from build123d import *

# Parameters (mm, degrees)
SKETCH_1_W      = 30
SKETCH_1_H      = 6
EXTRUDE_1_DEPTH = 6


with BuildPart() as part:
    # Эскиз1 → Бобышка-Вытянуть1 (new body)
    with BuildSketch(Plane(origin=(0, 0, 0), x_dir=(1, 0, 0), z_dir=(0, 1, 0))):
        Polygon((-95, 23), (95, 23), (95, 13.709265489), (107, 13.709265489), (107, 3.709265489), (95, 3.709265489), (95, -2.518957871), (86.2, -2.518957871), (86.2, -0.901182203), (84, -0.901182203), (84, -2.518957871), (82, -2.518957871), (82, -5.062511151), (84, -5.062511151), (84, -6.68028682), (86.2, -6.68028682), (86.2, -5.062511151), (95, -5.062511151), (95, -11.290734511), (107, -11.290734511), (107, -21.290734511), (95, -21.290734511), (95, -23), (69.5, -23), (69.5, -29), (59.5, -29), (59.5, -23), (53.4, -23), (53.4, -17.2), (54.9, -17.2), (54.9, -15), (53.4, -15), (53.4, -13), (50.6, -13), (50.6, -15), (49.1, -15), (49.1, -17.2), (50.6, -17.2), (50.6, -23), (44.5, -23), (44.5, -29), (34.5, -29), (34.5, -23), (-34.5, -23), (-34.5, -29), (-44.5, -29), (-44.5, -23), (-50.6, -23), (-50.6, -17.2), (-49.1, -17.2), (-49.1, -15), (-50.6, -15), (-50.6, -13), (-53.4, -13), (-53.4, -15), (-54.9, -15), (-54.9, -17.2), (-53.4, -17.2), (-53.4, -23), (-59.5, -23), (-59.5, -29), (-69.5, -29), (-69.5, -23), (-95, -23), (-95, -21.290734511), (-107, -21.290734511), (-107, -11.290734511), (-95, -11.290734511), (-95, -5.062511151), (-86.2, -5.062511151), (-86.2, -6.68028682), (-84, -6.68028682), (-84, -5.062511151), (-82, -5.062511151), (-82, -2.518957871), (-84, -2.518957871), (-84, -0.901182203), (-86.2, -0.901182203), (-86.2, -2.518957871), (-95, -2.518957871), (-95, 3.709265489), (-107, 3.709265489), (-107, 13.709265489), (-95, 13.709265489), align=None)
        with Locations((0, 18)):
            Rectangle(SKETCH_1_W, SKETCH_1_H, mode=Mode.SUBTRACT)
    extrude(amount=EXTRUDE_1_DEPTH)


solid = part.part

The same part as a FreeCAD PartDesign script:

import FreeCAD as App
import Part
import Sketcher

doc = App.newDocument("Part")
params = doc.addObject("Spreadsheet::Sheet", "Params")
for row, (alias, value) in enumerate([
    ("sketch1_width", "190 mm"),
    ("sketch1_width2", "12 mm"),
    ("sketch1_width3", "2 mm"),
    ("sketch1_width4", "10 mm"),
    ("sketch1_width5", "69 mm"),
    ("pad1_length", "6 mm"),
], start=1):
    params.set(f"A{row}", alias)
    params.set(f"B{row}", "=" + value)
    params.setAlias(f"B{row}", alias)

body = doc.addObject("PartDesign::Body", "Body")

# Sketch on XZ plane
sketch1 = doc.addObject("Sketcher::SketchObject", "Sketch")
body.addObject(sketch1)
sketch1.AttachmentSupport = (doc.XZ_Plane, [""])
sketch1.MapMode = "FlatFace"
sketch1.addGeometry([
    Part.LineSegment(App.Vector(95, -23, 0), App.Vector(-95, -23, 0)),  # 0
    Part.LineSegment(App.Vector(-95, -23, 0), App.Vector(-95, -13.7, 0)),  # 1
    Part.LineSegment(App.Vector(-95, -13.7, 0), App.Vector(-107, -13.7, 0)),  # 2
    Part.LineSegment(App.Vector(-107, -13.7, 0), App.Vector(-107, -3.7, 0)),  # 3
    Part.LineSegment(App.Vector(-107, -3.7, 0), App.Vector(-95, -3.7, 0)),  # 4
    Part.LineSegment(App.Vector(-95, -3.7, 0), App.Vector(-95, 2.5, 0)),  # 5
    Part.LineSegment(App.Vector(-95, 2.5, 0), App.Vector(-86.2, 2.5, 0)),  # 6
    Part.LineSegment(App.Vector(-86.2, 2.5, 0), App.Vector(-86.2, 0.9, 0)),  # 7
    Part.LineSegment(App.Vector(-86.2, 0.9, 0), App.Vector(-84, 0.9, 0)),  # 8
    Part.LineSegment(App.Vector(-84, 0.9, 0), App.Vector(-84, 2.5, 0)),  # 9
    Part.LineSegment(App.Vector(-84, 2.5, 0), App.Vector(-82, 2.5, 0)),  # 10
    Part.LineSegment(App.Vector(-82, 2.5, 0), App.Vector(-82, 5.1, 0)),  # 11
    Part.LineSegment(App.Vector(-82, 5.1, 0), App.Vector(-84, 5.1, 0)),  # 12
    Part.LineSegment(App.Vector(-84, 5.1, 0), App.Vector(-84, 6.7, 0)),  # 13
    Part.LineSegment(App.Vector(-84, 6.7, 0), App.Vector(-86.2, 6.7, 0)),  # 14
    Part.LineSegment(App.Vector(-86.2, 6.7, 0), App.Vector(-86.2, 5.1, 0)),  # 15
    Part.LineSegment(App.Vector(-86.2, 5.1, 0), App.Vector(-95, 5.1, 0)),  # 16
    Part.LineSegment(App.Vector(-95, 5.1, 0), App.Vector(-95, 11.3, 0)),  # 17
    Part.LineSegment(App.Vector(-95, 11.3, 0), App.Vector(-107, 11.3, 0)),  # 18
    Part.LineSegment(App.Vector(-107, 11.3, 0), App.Vector(-107, 21.3, 0)),  # 19
    Part.LineSegment(App.Vector(-107, 21.3, 0), App.Vector(-95, 21.3, 0)),  # 20
    Part.LineSegment(App.Vector(-95, 21.3, 0), App.Vector(-95, 23, 0)),  # 21
    Part.LineSegment(App.Vector(-95, 23, 0), App.Vector(-69.5, 23, 0)),  # 22
    Part.LineSegment(App.Vector(-69.5, 23, 0), App.Vector(-69.5, 29, 0)),  # 23
    Part.LineSegment(App.Vector(-69.5, 29, 0), App.Vector(-59.5, 29, 0)),  # 24
    Part.LineSegment(App.Vector(-59.5, 29, 0), App.Vector(-59.5, 23, 0)),  # 25
    Part.LineSegment(App.Vector(-59.5, 23, 0), App.Vector(-53.4, 23, 0)),  # 26
    Part.LineSegment(App.Vector(-53.4, 23, 0), App.Vector(-53.4, 17.2, 0)),  # 27
    Part.LineSegment(App.Vector(-53.4, 17.2, 0), App.Vector(-54.9, 17.2, 0)),  # 28
    Part.LineSegment(App.Vector(-54.9, 17.2, 0), App.Vector(-54.9, 15, 0)),  # 29
    Part.LineSegment(App.Vector(-54.9, 15, 0), App.Vector(-53.4, 15, 0)),  # 30
    Part.LineSegment(App.Vector(-53.4, 15, 0), App.Vector(-53.4, 13, 0)),  # 31
    Part.LineSegment(App.Vector(-53.4, 13, 0), App.Vector(-50.6, 13, 0)),  # 32
    Part.LineSegment(App.Vector(-50.6, 13, 0), App.Vector(-50.6, 15, 0)),  # 33
    Part.LineSegment(App.Vector(-50.6, 15, 0), App.Vector(-49.1, 15, 0)),  # 34
    Part.LineSegment(App.Vector(-49.1, 15, 0), App.Vector(-49.1, 17.2, 0)),  # 35
    Part.LineSegment(App.Vector(-49.1, 17.2, 0), App.Vector(-50.6, 17.2, 0)),  # 36
    Part.LineSegment(App.Vector(-50.6, 17.2, 0), App.Vector(-50.6, 23, 0)),  # 37
    Part.LineSegment(App.Vector(-50.6, 23, 0), App.Vector(-44.5, 23, 0)),  # 38
    Part.LineSegment(App.Vector(-44.5, 23, 0), App.Vector(-44.5, 29, 0)),  # 39
    Part.LineSegment(App.Vector(-44.5, 29, 0), App.Vector(-34.5, 29, 0)),  # 40
    Part.LineSegment(App.Vector(-34.5, 29, 0), App.Vector(-34.5, 23, 0)),  # 41
    Part.LineSegment(App.Vector(-34.5, 23, 0), App.Vector(34.5, 23, 0)),  # 42
    Part.LineSegment(App.Vector(34.5, 23, 0), App.Vector(34.5, 29, 0)),  # 43
    Part.LineSegment(App.Vector(34.5, 29, 0), App.Vector(44.5, 29, 0)),  # 44
    Part.LineSegment(App.Vector(44.5, 29, 0), App.Vector(44.5, 23, 0)),  # 45
    Part.LineSegment(App.Vector(44.5, 23, 0), App.Vector(50.6, 23, 0)),  # 46
    Part.LineSegment(App.Vector(50.6, 23, 0), App.Vector(50.6, 17.2, 0)),  # 47
    Part.LineSegment(App.Vector(50.6, 17.2, 0), App.Vector(49.1, 17.2, 0)),  # 48
    Part.LineSegment(App.Vector(49.1, 17.2, 0), App.Vector(49.1, 15, 0)),  # 49
    Part.LineSegment(App.Vector(49.1, 15, 0), App.Vector(50.6, 15, 0)),  # 50
    Part.LineSegment(App.Vector(50.6, 15, 0), App.Vector(50.6, 13, 0)),  # 51
    Part.LineSegment(App.Vector(50.6, 13, 0), App.Vector(53.4, 13, 0)),  # 52
    Part.LineSegment(App.Vector(53.4, 13, 0), App.Vector(53.4, 15, 0)),  # 53
    Part.LineSegment(App.Vector(53.4, 15, 0), App.Vector(54.9, 15, 0)),  # 54
    Part.LineSegment(App.Vector(54.9, 15, 0), App.Vector(54.9, 17.2, 0)),  # 55
    Part.LineSegment(App.Vector(54.9, 17.2, 0), App.Vector(53.4, 17.2, 0)),  # 56
    Part.LineSegment(App.Vector(53.4, 17.2, 0), App.Vector(53.4, 23, 0)),  # 57
    Part.LineSegment(App.Vector(53.4, 23, 0), App.Vector(59.5, 23, 0)),  # 58
    Part.LineSegment(App.Vector(59.5, 23, 0), App.Vector(59.5, 29, 0)),  # 59
    Part.LineSegment(App.Vector(59.5, 29, 0), App.Vector(69.5, 29, 0)),  # 60
    Part.LineSegment(App.Vector(69.5, 29, 0), App.Vector(69.5, 23, 0)),  # 61
    Part.LineSegment(App.Vector(69.5, 23, 0), App.Vector(95, 23, 0)),  # 62
    Part.LineSegment(App.Vector(95, 23, 0), App.Vector(95, 21.3, 0)),  # 63
    Part.LineSegment(App.Vector(95, 21.3, 0), App.Vector(107, 21.3, 0)),  # 64
    Part.LineSegment(App.Vector(107, 21.3, 0), App.Vector(107, 11.3, 0)),  # 65
    Part.LineSegment(App.Vector(107, 11.3, 0), App.Vector(95, 11.3, 0)),  # 66
    Part.LineSegment(App.Vector(95, 11.3, 0), App.Vector(95, 5.1, 0)),  # 67
    Part.LineSegment(App.Vector(95, 5.1, 0), App.Vector(86.2, 5.1, 0)),  # 68
    Part.LineSegment(App.Vector(86.2, 5.1, 0), App.Vector(86.2, 6.7, 0)),  # 69
    Part.LineSegment(App.Vector(86.2, 6.7, 0), App.Vector(84, 6.7, 0)),  # 70
    Part.LineSegment(App.Vector(84, 6.7, 0), App.Vector(84, 5.1, 0)),  # 71
    Part.LineSegment(App.Vector(84, 5.1, 0), App.Vector(82, 5.1, 0)),  # 72
    Part.LineSegment(App.Vector(82, 5.1, 0), App.Vector(82, 2.5, 0)),  # 73
    Part.LineSegment(App.Vector(82, 2.5, 0), App.Vector(84, 2.5, 0)),  # 74
    Part.LineSegment(App.Vector(84, 2.5, 0), App.Vector(84, 0.9, 0)),  # 75
    Part.LineSegment(App.Vector(84, 0.9, 0), App.Vector(86.2, 0.9, 0)),  # 76
    Part.LineSegment(App.Vector(86.2, 0.9, 0), App.Vector(86.2, 2.5, 0)),  # 77
    Part.LineSegment(App.Vector(86.2, 2.5, 0), App.Vector(95, 2.5, 0)),  # 78
    Part.LineSegment(App.Vector(95, 2.5, 0), App.Vector(95, -3.7, 0)),  # 79
    Part.LineSegment(App.Vector(95, -3.7, 0), App.Vector(107, -3.7, 0)),  # 80
    Part.LineSegment(App.Vector(107, -3.7, 0), App.Vector(107, -13.7, 0)),  # 81
    Part.LineSegment(App.Vector(107, -13.7, 0), App.Vector(95, -13.7, 0)),  # 82
    Part.LineSegment(App.Vector(95, -13.7, 0), App.Vector(95, -23, 0)),  # 83
    Part.LineSegment(App.Vector(-15, -15, 0), App.Vector(-15, -21, 0)),  # 84
    Part.LineSegment(App.Vector(-15, -21, 0), App.Vector(15, -21, 0)),  # 85
    Part.LineSegment(App.Vector(15, -21, 0), App.Vector(15, -15, 0)),  # 86
    Part.LineSegment(App.Vector(15, -15, 0), App.Vector(-15, -15, 0)),  # 87
], False)
sketch1.addConstraint([
    Sketcher.Constraint("Coincident", 0, 2, 1, 1),
    Sketcher.Constraint("Coincident", 1, 2, 2, 1),
    Sketcher.Constraint("Coincident", 2, 2, 3, 1),
    Sketcher.Constraint("Coincident", 3, 2, 4, 1),
    Sketcher.Constraint("Coincident", 4, 2, 5, 1),
    Sketcher.Constraint("Coincident", 5, 2, 6, 1),
    Sketcher.Constraint("Coincident", 6, 2, 7, 1),
    Sketcher.Constraint("Coincident", 7, 2, 8, 1),
    Sketcher.Constraint("Coincident", 8, 2, 9, 1),
    Sketcher.Constraint("Coincident", 9, 2, 10, 1),
    Sketcher.Constraint("Coincident", 10, 2, 11, 1),
    Sketcher.Constraint("Coincident", 11, 2, 12, 1),
    Sketcher.Constraint("Coincident", 12, 2, 13, 1),
    Sketcher.Constraint("Coincident", 13, 2, 14, 1),
    Sketcher.Constraint("Coincident", 14, 2, 15, 1),
    Sketcher.Constraint("Coincident", 15, 2, 16, 1),
    Sketcher.Constraint("Coincident", 16, 2, 17, 1),
    Sketcher.Constraint("Coincident", 17, 2, 18, 1),
    Sketcher.Constraint("Coincident", 18, 2, 19, 1),
    Sketcher.Constraint("Coincident", 19, 2, 20, 1),
    Sketcher.Constraint("Coincident", 20, 2, 21, 1),
    Sketcher.Constraint("Coincident", 21, 2, 22, 1),
    Sketcher.Constraint("Coincident", 22, 2, 23, 1),
    Sketcher.Constraint("Coincident", 23, 2, 24, 1),
    Sketcher.Constraint("Coincident", 24, 2, 25, 1),
    Sketcher.Constraint("Coincident", 25, 2, 26, 1),
    Sketcher.Constraint("Coincident", 26, 2, 27, 1),
    Sketcher.Constraint("Coincident", 27, 2, 28, 1),
    Sketcher.Constraint("Coincident", 28, 2, 29, 1),
    Sketcher.Constraint("Coincident", 29, 2, 30, 1),
    Sketcher.Constraint("Coincident", 30, 2, 31, 1),
    Sketcher.Constraint("Coincident", 31, 2, 32, 1),
    Sketcher.Constraint("Coincident", 32, 2, 33, 1),
    Sketcher.Constraint("Coincident", 33, 2, 34, 1),
    Sketcher.Constraint("Coincident", 34, 2, 35, 1),
    Sketcher.Constraint("Coincident", 35, 2, 36, 1),
    Sketcher.Constraint("Coincident", 36, 2, 37, 1),
    Sketcher.Constraint("Coincident", 37, 2, 38, 1),
    Sketcher.Constraint("Coincident", 38, 2, 39, 1),
    Sketcher.Constraint("Coincident", 39, 2, 40, 1),
    Sketcher.Constraint("Coincident", 40, 2, 41, 1),
    Sketcher.Constraint("Coincident", 41, 2, 42, 1),
    Sketcher.Constraint("Coincident", 42, 2, 43, 1),
    Sketcher.Constraint("Coincident", 43, 2, 44, 1),
    Sketcher.Constraint("Coincident", 44, 2, 45, 1),
    Sketcher.Constraint("Coincident", 45, 2, 46, 1),
    Sketcher.Constraint("Coincident", 46, 2, 47, 1),
    Sketcher.Constraint("Coincident", 47, 2, 48, 1),
    Sketcher.Constraint("Coincident", 48, 2, 49, 1),
    Sketcher.Constraint("Coincident", 49, 2, 50, 1),
    Sketcher.Constraint("Coincident", 50, 2, 51, 1),
    Sketcher.Constraint("Coincident", 51, 2, 52, 1),
    Sketcher.Constraint("Coincident", 52, 2, 53, 1),
    Sketcher.Constraint("Coincident", 53, 2, 54, 1),
    Sketcher.Constraint("Coincident", 54, 2, 55, 1),
    Sketcher.Constraint("Coincident", 55, 2, 56, 1),
    Sketcher.Constraint("Coincident", 56, 2, 57, 1),
    Sketcher.Constraint("Coincident", 57, 2, 58, 1),
    Sketcher.Constraint("Coincident", 58, 2, 59, 1),
    Sketcher.Constraint("Coincident", 59, 2, 60, 1),
    Sketcher.Constraint("Coincident", 60, 2, 61, 1),
    Sketcher.Constraint("Coincident", 61, 2, 62, 1),
    Sketcher.Constraint("Coincident", 62, 2, 63, 1),
    Sketcher.Constraint("Coincident", 63, 2, 64, 1),
    Sketcher.Constraint("Coincident", 64, 2, 65, 1),
    Sketcher.Constraint("Coincident", 65, 2, 66, 1),
    Sketcher.Constraint("Coincident", 66, 2, 67, 1),
    Sketcher.Constraint("Coincident", 67, 2, 68, 1),
    Sketcher.Constraint("Coincident", 68, 2, 69, 1),
    Sketcher.Constraint("Coincident", 69, 2, 70, 1),
    Sketcher.Constraint("Coincident", 70, 2, 71, 1),
    Sketcher.Constraint("Coincident", 71, 2, 72, 1),
    Sketcher.Constraint("Coincident", 72, 2, 73, 1),
    Sketcher.Constraint("Coincident", 73, 2, 74, 1),
    Sketcher.Constraint("Coincident", 74, 2, 75, 1),
    Sketcher.Constraint("Coincident", 75, 2, 76, 1),
    Sketcher.Constraint("Coincident", 76, 2, 77, 1),
    Sketcher.Constraint("Coincident", 77, 2, 78, 1),
    Sketcher.Constraint("Coincident", 78, 2, 79, 1),
    Sketcher.Constraint("Coincident", 79, 2, 80, 1),
    Sketcher.Constraint("Coincident", 80, 2, 81, 1),
    Sketcher.Constraint("Coincident", 81, 2, 82, 1),
    Sketcher.Constraint("Coincident", 82, 2, 83, 1),
    Sketcher.Constraint("Coincident", 83, 2, 0, 1),
    Sketcher.Constraint("Coincident", 84, 2, 85, 1),
    Sketcher.Constraint("Coincident", 85, 2, 86, 1),
    Sketcher.Constraint("Coincident", 86, 2, 87, 1),
    Sketcher.Constraint("Coincident", 87, 2, 84, 1),
    Sketcher.Constraint("Horizontal", 0),
    Sketcher.Constraint("Vertical", 1),
    Sketcher.Constraint("Horizontal", 2),
    Sketcher.Constraint("Vertical", 3),
    Sketcher.Constraint("Horizontal", 4),
    Sketcher.Constraint("Vertical", 5),
    Sketcher.Constraint("Horizontal", 6),
    Sketcher.Constraint("Vertical", 7),
    Sketcher.Constraint("Horizontal", 8),
    Sketcher.Constraint("Vertical", 9),
    Sketcher.Constraint("Horizontal", 10),
    Sketcher.Constraint("Vertical", 11),
    Sketcher.Constraint("Horizontal", 12),
    Sketcher.Constraint("Vertical", 13),
    Sketcher.Constraint("Horizontal", 14),
    Sketcher.Constraint("Vertical", 15),
    Sketcher.Constraint("Horizontal", 16),
    Sketcher.Constraint("Vertical", 17),
    Sketcher.Constraint("Horizontal", 18),
    Sketcher.Constraint("Vertical", 19),
    Sketcher.Constraint("Horizontal", 20),
    Sketcher.Constraint("Vertical", 21),
    Sketcher.Constraint("Horizontal", 22),
    Sketcher.Constraint("Vertical", 23),
    Sketcher.Constraint("Horizontal", 24),
    Sketcher.Constraint("Vertical", 25),
    Sketcher.Constraint("Horizontal", 26),
    Sketcher.Constraint("Vertical", 27),
    Sketcher.Constraint("Horizontal", 28),
    Sketcher.Constraint("Vertical", 29),
    Sketcher.Constraint("Horizontal", 30),
    Sketcher.Constraint("Vertical", 31),
    Sketcher.Constraint("Horizontal", 32),
    Sketcher.Constraint("Vertical", 33),
    Sketcher.Constraint("Horizontal", 34),
    Sketcher.Constraint("Vertical", 35),
    Sketcher.Constraint("Horizontal", 36),
    Sketcher.Constraint("Vertical", 37),
    Sketcher.Constraint("Horizontal", 38),
    Sketcher.Constraint("Vertical", 39),
    Sketcher.Constraint("Horizontal", 40),
    Sketcher.Constraint("Vertical", 41),
    Sketcher.Constraint("Horizontal", 42),
    Sketcher.Constraint("Vertical", 43),
    Sketcher.Constraint("Horizontal", 44),
    Sketcher.Constraint("Vertical", 45),
    Sketcher.Constraint("Horizontal", 46),
    Sketcher.Constraint("Vertical", 47),
    Sketcher.Constraint("Horizontal", 48),
    Sketcher.Constraint("Vertical", 49),
    Sketcher.Constraint("Horizontal", 50),
    Sketcher.Constraint("Vertical", 51),
    Sketcher.Constraint("Horizontal", 52),
    Sketcher.Constraint("Vertical", 53),
    Sketcher.Constraint("Horizontal", 54),
    Sketcher.Constraint("Vertical", 55),
    Sketcher.Constraint("Horizontal", 56),
    Sketcher.Constraint("Vertical", 57),
    Sketcher.Constraint("Horizontal", 58),
    Sketcher.Constraint("Vertical", 59),
    Sketcher.Constraint("Horizontal", 60),
    Sketcher.Constraint("Vertical", 61),
    Sketcher.Constraint("Horizontal", 62),
    Sketcher.Constraint("Vertical", 63),
    Sketcher.Constraint("Horizontal", 64),
    Sketcher.Constraint("Vertical", 65),
    Sketcher.Constraint("Horizontal", 66),
    Sketcher.Constraint("Vertical", 67),
    Sketcher.Constraint("Horizontal", 68),
    Sketcher.Constraint("Vertical", 69),
    Sketcher.Constraint("Horizontal", 70),
    Sketcher.Constraint("Vertical", 71),
    Sketcher.Constraint("Horizontal", 72),
    Sketcher.Constraint("Vertical", 73),
    Sketcher.Constraint("Horizontal", 74),
    Sketcher.Constraint("Vertical", 75),
    Sketcher.Constraint("Horizontal", 76),
    Sketcher.Constraint("Vertical", 77),
    Sketcher.Constraint("Horizontal", 78),
    Sketcher.Constraint("Vertical", 79),
    Sketcher.Constraint("Horizontal", 80),
    Sketcher.Constraint("Vertical", 81),
    Sketcher.Constraint("Horizontal", 82),
    Sketcher.Constraint("Vertical", 83),
    Sketcher.Constraint("Vertical", 84),
    Sketcher.Constraint("Horizontal", 85),
    Sketcher.Constraint("Vertical", 86),
    Sketcher.Constraint("Horizontal", 87),
    Sketcher.Constraint("Symmetric", 0, 2, 62, 2, -1, 1),
    Sketcher.Constraint("Symmetric", 21, 2, 83, 2, -1, 1),
    Sketcher.Constraint("Symmetric", 40, 2, 43, 2, -2),
    Sketcher.Constraint("Symmetric", 38, 2, 45, 2, -2),
    Sketcher.Constraint("Symmetric", 36, 2, 47, 2, -2),
    Sketcher.Constraint("Symmetric", 34, 2, 49, 2, -2),
    Sketcher.Constraint("Symmetric", 32, 2, 51, 2, -2),
    Sketcher.Constraint("Symmetric", 30, 2, 53, 2, -2),
    Sketcher.Constraint("Symmetric", 28, 2, 55, 2, -2),
    Sketcher.Constraint("Symmetric", 26, 2, 57, 2, -2),
    Sketcher.Constraint("Symmetric", 24, 2, 59, 2, -2),
    Sketcher.Constraint("Symmetric", 20, 2, 63, 2, -2),
    Sketcher.Constraint("Symmetric", 18, 2, 65, 2, -2),
    Sketcher.Constraint("Symmetric", 16, 2, 67, 2, -2),
    Sketcher.Constraint("Symmetric", 14, 2, 69, 2, -2),
    Sketcher.Constraint("Symmetric", 12, 2, 71, 2, -2),
    Sketcher.Constraint("Symmetric", 10, 2, 73, 2, -2),
    Sketcher.Constraint("Symmetric", 8, 2, 75, 2, -2),
    Sketcher.Constraint("Symmetric", 6, 2, 77, 2, -2),
    Sketcher.Constraint("Symmetric", 4, 2, 79, 2, -2),
    Sketcher.Constraint("Symmetric", 2, 2, 81, 2, -2),
    Sketcher.Constraint("Horizontal", 6, 2, 9, 2),
    Sketcher.Constraint("Horizontal", 12, 2, 15, 2),
    Sketcher.Constraint("Horizontal", 22, 2, 25, 2),
    Sketcher.Constraint("Horizontal", 30, 2, 33, 2),
    Sketcher.Constraint("Horizontal", 28, 2, 35, 2),
    Sketcher.Constraint("Horizontal", 26, 2, 37, 2),
    Sketcher.Constraint("Horizontal", 24, 2, 39, 2),
    Sketcher.Constraint("Horizontal", 38, 2, 41, 2),
    Sketcher.Constraint("Vertical", 1, 2, 4, 2),
    Sketcher.Constraint("Vertical", 9, 2, 12, 2),
    Sketcher.Constraint("Vertical", 7, 2, 14, 2),
    Sketcher.Constraint("Vertical", 5, 2, 16, 2),
    Sketcher.Constraint("Vertical", 3, 2, 18, 2),
    Sketcher.Constraint("Vertical", 27, 2, 30, 2),
    Sketcher.Constraint("Vertical", 33, 2, 36, 2),
    Sketcher.Constraint("Equal", 30, 34),
    Sketcher.Constraint("Equal", 26, 38),
    Sketcher.Constraint("Equal", 24, 40),
    Sketcher.Constraint("Equal", 44, 60),
    Sketcher.Constraint("Equal", 60, 3),
    Sketcher.Constraint("Equal", 9, 13),
    Sketcher.Constraint("Equal", 5, 17),
    Sketcher.Constraint("Equal", 3, 19),
    Sketcher.Constraint("Equal", 76, 29),
    Sketcher.Constraint("Equal", 74, 31),
    Sketcher.Constraint("Equal", 61, 84),
    Sketcher.Constraint("DistanceX", 0, 2, 0, 1, 190.0),
    Sketcher.Constraint("DistanceX", 2, 2, 2, 1, 12.0),
    Sketcher.Constraint("DistanceX", 10, 1, 10, 2, 2.0),
    Sketcher.Constraint("DistanceX", 24, 1, 24, 2, 10.0),
    Sketcher.Constraint("DistanceX", 42, 1, 42, 2, 69.0),
    Sketcher.Constraint("DistanceX", 85, 1, 85, 2, 30.0),
    Sketcher.Constraint("DistanceY", 23, 1, 23, 2, 6.0),
    Sketcher.Constraint("DistanceX", 6, 1, 6, 2, 8.8),
    Sketcher.Constraint("DistanceX", 8, 1, 8, 2, 2.2),
    Sketcher.Constraint("DistanceX", 22, 1, 22, 2, 25.5),
    Sketcher.Constraint("DistanceX", 26, 1, 26, 2, 6.1),
    Sketcher.Constraint("DistanceX", 28, 2, 28, 1, 1.5),
    Sketcher.Constraint("DistanceY", 27, 2, 27, 1, 5.8),
    Sketcher.Constraint("DistanceY", 0, 2, -1, 1, 23.0),
    Sketcher.Constraint("DistanceX", 84, 2, -1, 1, 15.0),
    Sketcher.Constraint("DistanceY", 84, 2, -1, 1, 21.0),
    Sketcher.Constraint("DistanceY", 1, 1, 1, 2, 9.290735),
    Sketcher.Constraint("DistanceY", 5, 1, 5, 2, 6.228223),
    Sketcher.Constraint("DistanceY", 7, 2, 7, 1, 1.617776),
    Sketcher.Constraint("DistanceY", 11, 1, 11, 2, 2.543553),
])
sketch1.setExpression("Constraints[223]", "Params.sketch1_width")
sketch1.setExpression("Constraints[224]", "Params.sketch1_width2")
sketch1.setExpression("Constraints[225]", "Params.sketch1_width3")
sketch1.setExpression("Constraints[226]", "Params.sketch1_width4")
sketch1.setExpression("Constraints[227]", "Params.sketch1_width5")
pad1 = doc.addObject("PartDesign::Pad", "Pad")
body.addObject(pad1)
pad1.Profile = sketch1
pad1.setExpression("Length", "Params.pad1_length")
pad1.Reversed = True

doc.recompute()
